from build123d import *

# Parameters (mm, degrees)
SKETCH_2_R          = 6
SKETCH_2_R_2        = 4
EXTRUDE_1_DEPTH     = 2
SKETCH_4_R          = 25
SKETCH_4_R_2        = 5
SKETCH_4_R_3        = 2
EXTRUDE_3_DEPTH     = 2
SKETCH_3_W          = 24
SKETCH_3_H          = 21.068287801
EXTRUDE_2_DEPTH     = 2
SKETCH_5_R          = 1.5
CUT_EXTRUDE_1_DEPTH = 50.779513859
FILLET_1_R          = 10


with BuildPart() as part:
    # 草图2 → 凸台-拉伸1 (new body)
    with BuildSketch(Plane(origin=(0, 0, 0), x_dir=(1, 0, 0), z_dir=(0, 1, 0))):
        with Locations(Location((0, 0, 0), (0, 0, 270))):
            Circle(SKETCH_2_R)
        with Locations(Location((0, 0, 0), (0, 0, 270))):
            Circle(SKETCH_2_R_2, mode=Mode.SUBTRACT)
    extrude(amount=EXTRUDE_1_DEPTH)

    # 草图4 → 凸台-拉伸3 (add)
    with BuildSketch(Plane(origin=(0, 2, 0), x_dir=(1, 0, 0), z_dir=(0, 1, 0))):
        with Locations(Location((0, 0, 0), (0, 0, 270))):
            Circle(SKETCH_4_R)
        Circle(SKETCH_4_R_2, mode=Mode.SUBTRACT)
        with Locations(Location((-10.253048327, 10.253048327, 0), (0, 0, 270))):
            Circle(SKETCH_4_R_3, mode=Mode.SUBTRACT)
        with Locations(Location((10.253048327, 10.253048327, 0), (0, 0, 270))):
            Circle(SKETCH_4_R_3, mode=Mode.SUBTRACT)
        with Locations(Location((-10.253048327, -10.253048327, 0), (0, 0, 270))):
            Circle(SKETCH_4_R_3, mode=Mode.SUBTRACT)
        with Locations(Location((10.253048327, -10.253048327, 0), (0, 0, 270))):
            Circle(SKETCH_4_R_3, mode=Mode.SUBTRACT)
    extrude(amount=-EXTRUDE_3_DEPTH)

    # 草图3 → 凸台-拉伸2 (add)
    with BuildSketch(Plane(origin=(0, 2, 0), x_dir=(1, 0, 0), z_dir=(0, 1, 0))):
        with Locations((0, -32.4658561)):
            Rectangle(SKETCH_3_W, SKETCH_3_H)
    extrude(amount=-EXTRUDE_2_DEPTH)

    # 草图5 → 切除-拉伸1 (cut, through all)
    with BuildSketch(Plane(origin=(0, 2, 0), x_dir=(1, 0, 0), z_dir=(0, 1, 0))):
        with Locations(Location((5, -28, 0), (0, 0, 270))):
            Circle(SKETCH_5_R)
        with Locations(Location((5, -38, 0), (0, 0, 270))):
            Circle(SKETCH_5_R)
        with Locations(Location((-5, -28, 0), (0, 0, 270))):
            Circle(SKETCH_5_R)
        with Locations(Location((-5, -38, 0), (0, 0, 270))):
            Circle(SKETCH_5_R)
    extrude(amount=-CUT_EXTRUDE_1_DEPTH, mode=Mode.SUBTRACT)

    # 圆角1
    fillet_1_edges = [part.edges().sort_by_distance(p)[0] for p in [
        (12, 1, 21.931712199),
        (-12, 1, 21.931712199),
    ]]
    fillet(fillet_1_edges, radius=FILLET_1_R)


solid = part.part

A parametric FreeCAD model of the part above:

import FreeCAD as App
import Part
import Sketcher


def edges_at(feature, points):
    """Names of the edges that pass closest to the given points."""
    edges = feature.Shape.Edges
    near = lambda p: min(range(len(edges)), key=lambda i: edges[i].distToShape(Part.Vertex(*p))[0])
    return sorted({f"Edge{near(p) + 1}" for p in points})

doc = App.newDocument("Part")
body = doc.addObject("PartDesign::Body", "Body")

# Sketch on XZ plane
sketch1 = doc.addObject("Sketcher::SketchObject", "Sketch")
body.addObject(sketch1)
sketch1.AttachmentSupport = (doc.XZ_Plane, [""])
sketch1.MapMode = "FlatFace"
sketch1.addGeometry([
    Part.Circle(App.Vector(0, 0, 0), App.Vector(0, 0, 1), 6),
    Part.Circle(App.Vector(0, 0, 0), App.Vector(0, 0, 1), 4),
], False)
sketch1.addConstraint([
    Sketcher.Constraint("Coincident", 0, 3, -1, 1),
    Sketcher.Constraint("Coincident", 1, 3, -1, 1),
    Sketcher.Constraint("Diameter", 0, 12.0),
    Sketcher.Constraint("Diameter", 1, 8.0),
])
pad1 = doc.addObject("PartDesign::Pad", "Pad")
body.addObject(pad1)
pad1.Profile = sketch1
pad1.Length = 2
pad1.Reversed = True

# Sketch on XZ plane
sketch2 = doc.addObject("Sketcher::SketchObject", "Sketch001")
body.addObject(sketch2)
sketch2.AttachmentSupport = (doc.XZ_Plane, [""])
sketch2.MapMode = "FlatFace"
sketch2.AttachmentOffset = App.Placement(App.Vector(0, 0, -2), App.Rotation())
sketch2.addGeometry([
    Part.Circle(App.Vector(0, 0, 0), App.Vector(0, 0, 1), 25),  # 0
    Part.Circle(App.Vector(-10.3, -10.3, 0), App.Vector(0, 0, 1), 2),  # 1
    Part.Circle(App.Vector(0, 0, 0), App.Vector(0, 0, 1), 5),  # 2
    Part.Circle(App.Vector(-10.3, 10.3, 0), App.Vector(0, 0, 1), 2),  # 3
    Part.Circle(App.Vector(10.3, -10.3, 0), App.Vector(0, 0, 1), 2),  # 4
    Part.Circle(App.Vector(10.3, 10.3, 0), App.Vector(0, 0, 1), 2),  # 5
], False)
sketch2.addConstraint([
    Sketcher.Constraint("Coincident", 0, 3, -1, 1),
    Sketcher.Constraint("Coincident", 2, 3, -1, 1),
    Sketcher.Constraint("Equal", 1, 3),
    Sketcher.Constraint("Equal", 3, 4),
    Sketcher.Constraint("Equal", 4, 5),
    Sketcher.Constraint("Symmetric", 3, 3, 4, 3, -1, 1),
    Sketcher.Constraint("Symmetric", 1, 3, 5, 3, -1, 1),
    Sketcher.Constraint("Symmetric", 1, 3, 4, 3, -2),
    Sketcher.Constraint("Diameter", 0, 50.0),
    Sketcher.Constraint("Diameter", 1, 4.0),
    Sketcher.Constraint("Diameter", 2, 10.0),
    Sketcher.Constraint("DistanceX", 1, 3, -1, 1, 10.253048),
    Sketcher.Constraint("DistanceY", 1, 3, -1, 1, 10.253048),
])
pad2 = doc.addObject("PartDesign::Pad", "Pad001")
body.addObject(pad2)
pad2.Profile = sketch2
pad2.Length = 2

# Sketch on XZ plane
sketch3 = doc.addObject("Sketcher::SketchObject", "Sketch002")
body.addObject(sketch3)
sketch3.AttachmentSupport = (doc.XZ_Plane, [""])
sketch3.MapMode = "FlatFace"
sketch3.AttachmentOffset = App.Placement(App.Vector(0, 0, -2), App.Rotation())
sketch3.addGeometry([
    Part.LineSegment(App.Vector(-12, 22, 0), App.Vector(-12, 43, 0)),
    Part.LineSegment(App.Vector(-12, 43, 0), App.Vector(12, 43, 0)),
    Part.LineSegment(App.Vector(12, 43, 0), App.Vector(12, 22, 0)),
    Part.LineSegment(App.Vector(12, 22, 0), App.Vector(-12, 22, 0)),
], False)
sketch3.addConstraint([
    Sketcher.Constraint("Coincident", 0, 2, 1, 1),
    Sketcher.Constraint("Coincident", 1, 2, 2, 1),
    Sketcher.Constraint("Coincident", 2, 2, 3, 1),
    Sketcher.Constraint("Coincident", 3, 2, 0, 1),
    Sketcher.Constraint("Vertical", 0),
    Sketcher.Constraint("Horizontal", 1),
    Sketcher.Constraint("Vertical", 2),
    Sketcher.Constraint("Horizontal", 3),
    Sketcher.Constraint("DistanceX", 1, 1, 1, 2, 24.0),
    Sketcher.Constraint("DistanceX", 0, 2, -1, 1, 12.0),
    Sketcher.Constraint("DistanceY", -1, 1, 0, 2, 43.0),
    Sketcher.Constraint("DistanceY", 0, 1, 0, 2, 21.068288),
])
pad3 = doc.addObject("PartDesign::Pad", "Pad002")
body.addObject(pad3)
pad3.Profile = sketch3
pad3.Length = 2

# Sketch on XZ plane
sketch4 = doc.addObject("Sketcher::SketchObject", "Sketch003")
body.addObject(sketch4)
sketch4.AttachmentSupport = (doc.XZ_Plane, [""])
sketch4.MapMode = "FlatFace"
sketch4.AttachmentOffset = App.Placement(App.Vector(0, 0, -2), App.Rotation())
sketch4.addGeometry([
    Part.Circle(App.Vector(5, 28, 0), App.Vector(0, 0, 1), 1.5),
    Part.Circle(App.Vector(5, 38, 0), App.Vector(0, 0, 1), 1.5),
    Part.Circle(App.Vector(-5, 28, 0), App.Vector(0, 0, 1), 1.5),
    Part.Circle(App.Vector(-5, 38, 0), App.Vector(0, 0, 1), 1.5),
], False)
sketch4.addConstraint([
    Sketcher.Constraint("Equal", 0, 1),
    Sketcher.Constraint("Equal", 1, 2),
    Sketcher.Constraint("Equal", 2, 3),
    Sketcher.Constraint("Symmetric", 0, 3, 2, 3, -2),
    Sketcher.Constraint("Symmetric", 1, 3, 3, 3, -2),
    Sketcher.Constraint("Vertical", 0, 3, 1, 3),
    Sketcher.Constraint("Diameter", 0, 3.0),
    Sketcher.Constraint("DistanceX", -1, 1, 0, 3, 5.0),
    Sketcher.Constraint("DistanceY", -1, 1, 0, 3, 28.0),
    Sketcher.Constraint("DistanceY", -1, 1, 1, 3, 38.0),
])
pocket1 = doc.addObject("PartDesign::Pocket", "Pocket")
body.addObject(pocket1)
pocket1.Profile = sketch4
pocket1.Type = "ThroughAll"
pocket1.Reversed = True
doc.recompute()

fillet = doc.addObject("PartDesign::Fillet", "Fillet")
body.addObject(fillet)
fillet.Base = (pocket1, edges_at(pocket1, [(12, 1, 21.932), (-12, 1, 21.932)]))
fillet.Radius = 10

doc.recompute()
